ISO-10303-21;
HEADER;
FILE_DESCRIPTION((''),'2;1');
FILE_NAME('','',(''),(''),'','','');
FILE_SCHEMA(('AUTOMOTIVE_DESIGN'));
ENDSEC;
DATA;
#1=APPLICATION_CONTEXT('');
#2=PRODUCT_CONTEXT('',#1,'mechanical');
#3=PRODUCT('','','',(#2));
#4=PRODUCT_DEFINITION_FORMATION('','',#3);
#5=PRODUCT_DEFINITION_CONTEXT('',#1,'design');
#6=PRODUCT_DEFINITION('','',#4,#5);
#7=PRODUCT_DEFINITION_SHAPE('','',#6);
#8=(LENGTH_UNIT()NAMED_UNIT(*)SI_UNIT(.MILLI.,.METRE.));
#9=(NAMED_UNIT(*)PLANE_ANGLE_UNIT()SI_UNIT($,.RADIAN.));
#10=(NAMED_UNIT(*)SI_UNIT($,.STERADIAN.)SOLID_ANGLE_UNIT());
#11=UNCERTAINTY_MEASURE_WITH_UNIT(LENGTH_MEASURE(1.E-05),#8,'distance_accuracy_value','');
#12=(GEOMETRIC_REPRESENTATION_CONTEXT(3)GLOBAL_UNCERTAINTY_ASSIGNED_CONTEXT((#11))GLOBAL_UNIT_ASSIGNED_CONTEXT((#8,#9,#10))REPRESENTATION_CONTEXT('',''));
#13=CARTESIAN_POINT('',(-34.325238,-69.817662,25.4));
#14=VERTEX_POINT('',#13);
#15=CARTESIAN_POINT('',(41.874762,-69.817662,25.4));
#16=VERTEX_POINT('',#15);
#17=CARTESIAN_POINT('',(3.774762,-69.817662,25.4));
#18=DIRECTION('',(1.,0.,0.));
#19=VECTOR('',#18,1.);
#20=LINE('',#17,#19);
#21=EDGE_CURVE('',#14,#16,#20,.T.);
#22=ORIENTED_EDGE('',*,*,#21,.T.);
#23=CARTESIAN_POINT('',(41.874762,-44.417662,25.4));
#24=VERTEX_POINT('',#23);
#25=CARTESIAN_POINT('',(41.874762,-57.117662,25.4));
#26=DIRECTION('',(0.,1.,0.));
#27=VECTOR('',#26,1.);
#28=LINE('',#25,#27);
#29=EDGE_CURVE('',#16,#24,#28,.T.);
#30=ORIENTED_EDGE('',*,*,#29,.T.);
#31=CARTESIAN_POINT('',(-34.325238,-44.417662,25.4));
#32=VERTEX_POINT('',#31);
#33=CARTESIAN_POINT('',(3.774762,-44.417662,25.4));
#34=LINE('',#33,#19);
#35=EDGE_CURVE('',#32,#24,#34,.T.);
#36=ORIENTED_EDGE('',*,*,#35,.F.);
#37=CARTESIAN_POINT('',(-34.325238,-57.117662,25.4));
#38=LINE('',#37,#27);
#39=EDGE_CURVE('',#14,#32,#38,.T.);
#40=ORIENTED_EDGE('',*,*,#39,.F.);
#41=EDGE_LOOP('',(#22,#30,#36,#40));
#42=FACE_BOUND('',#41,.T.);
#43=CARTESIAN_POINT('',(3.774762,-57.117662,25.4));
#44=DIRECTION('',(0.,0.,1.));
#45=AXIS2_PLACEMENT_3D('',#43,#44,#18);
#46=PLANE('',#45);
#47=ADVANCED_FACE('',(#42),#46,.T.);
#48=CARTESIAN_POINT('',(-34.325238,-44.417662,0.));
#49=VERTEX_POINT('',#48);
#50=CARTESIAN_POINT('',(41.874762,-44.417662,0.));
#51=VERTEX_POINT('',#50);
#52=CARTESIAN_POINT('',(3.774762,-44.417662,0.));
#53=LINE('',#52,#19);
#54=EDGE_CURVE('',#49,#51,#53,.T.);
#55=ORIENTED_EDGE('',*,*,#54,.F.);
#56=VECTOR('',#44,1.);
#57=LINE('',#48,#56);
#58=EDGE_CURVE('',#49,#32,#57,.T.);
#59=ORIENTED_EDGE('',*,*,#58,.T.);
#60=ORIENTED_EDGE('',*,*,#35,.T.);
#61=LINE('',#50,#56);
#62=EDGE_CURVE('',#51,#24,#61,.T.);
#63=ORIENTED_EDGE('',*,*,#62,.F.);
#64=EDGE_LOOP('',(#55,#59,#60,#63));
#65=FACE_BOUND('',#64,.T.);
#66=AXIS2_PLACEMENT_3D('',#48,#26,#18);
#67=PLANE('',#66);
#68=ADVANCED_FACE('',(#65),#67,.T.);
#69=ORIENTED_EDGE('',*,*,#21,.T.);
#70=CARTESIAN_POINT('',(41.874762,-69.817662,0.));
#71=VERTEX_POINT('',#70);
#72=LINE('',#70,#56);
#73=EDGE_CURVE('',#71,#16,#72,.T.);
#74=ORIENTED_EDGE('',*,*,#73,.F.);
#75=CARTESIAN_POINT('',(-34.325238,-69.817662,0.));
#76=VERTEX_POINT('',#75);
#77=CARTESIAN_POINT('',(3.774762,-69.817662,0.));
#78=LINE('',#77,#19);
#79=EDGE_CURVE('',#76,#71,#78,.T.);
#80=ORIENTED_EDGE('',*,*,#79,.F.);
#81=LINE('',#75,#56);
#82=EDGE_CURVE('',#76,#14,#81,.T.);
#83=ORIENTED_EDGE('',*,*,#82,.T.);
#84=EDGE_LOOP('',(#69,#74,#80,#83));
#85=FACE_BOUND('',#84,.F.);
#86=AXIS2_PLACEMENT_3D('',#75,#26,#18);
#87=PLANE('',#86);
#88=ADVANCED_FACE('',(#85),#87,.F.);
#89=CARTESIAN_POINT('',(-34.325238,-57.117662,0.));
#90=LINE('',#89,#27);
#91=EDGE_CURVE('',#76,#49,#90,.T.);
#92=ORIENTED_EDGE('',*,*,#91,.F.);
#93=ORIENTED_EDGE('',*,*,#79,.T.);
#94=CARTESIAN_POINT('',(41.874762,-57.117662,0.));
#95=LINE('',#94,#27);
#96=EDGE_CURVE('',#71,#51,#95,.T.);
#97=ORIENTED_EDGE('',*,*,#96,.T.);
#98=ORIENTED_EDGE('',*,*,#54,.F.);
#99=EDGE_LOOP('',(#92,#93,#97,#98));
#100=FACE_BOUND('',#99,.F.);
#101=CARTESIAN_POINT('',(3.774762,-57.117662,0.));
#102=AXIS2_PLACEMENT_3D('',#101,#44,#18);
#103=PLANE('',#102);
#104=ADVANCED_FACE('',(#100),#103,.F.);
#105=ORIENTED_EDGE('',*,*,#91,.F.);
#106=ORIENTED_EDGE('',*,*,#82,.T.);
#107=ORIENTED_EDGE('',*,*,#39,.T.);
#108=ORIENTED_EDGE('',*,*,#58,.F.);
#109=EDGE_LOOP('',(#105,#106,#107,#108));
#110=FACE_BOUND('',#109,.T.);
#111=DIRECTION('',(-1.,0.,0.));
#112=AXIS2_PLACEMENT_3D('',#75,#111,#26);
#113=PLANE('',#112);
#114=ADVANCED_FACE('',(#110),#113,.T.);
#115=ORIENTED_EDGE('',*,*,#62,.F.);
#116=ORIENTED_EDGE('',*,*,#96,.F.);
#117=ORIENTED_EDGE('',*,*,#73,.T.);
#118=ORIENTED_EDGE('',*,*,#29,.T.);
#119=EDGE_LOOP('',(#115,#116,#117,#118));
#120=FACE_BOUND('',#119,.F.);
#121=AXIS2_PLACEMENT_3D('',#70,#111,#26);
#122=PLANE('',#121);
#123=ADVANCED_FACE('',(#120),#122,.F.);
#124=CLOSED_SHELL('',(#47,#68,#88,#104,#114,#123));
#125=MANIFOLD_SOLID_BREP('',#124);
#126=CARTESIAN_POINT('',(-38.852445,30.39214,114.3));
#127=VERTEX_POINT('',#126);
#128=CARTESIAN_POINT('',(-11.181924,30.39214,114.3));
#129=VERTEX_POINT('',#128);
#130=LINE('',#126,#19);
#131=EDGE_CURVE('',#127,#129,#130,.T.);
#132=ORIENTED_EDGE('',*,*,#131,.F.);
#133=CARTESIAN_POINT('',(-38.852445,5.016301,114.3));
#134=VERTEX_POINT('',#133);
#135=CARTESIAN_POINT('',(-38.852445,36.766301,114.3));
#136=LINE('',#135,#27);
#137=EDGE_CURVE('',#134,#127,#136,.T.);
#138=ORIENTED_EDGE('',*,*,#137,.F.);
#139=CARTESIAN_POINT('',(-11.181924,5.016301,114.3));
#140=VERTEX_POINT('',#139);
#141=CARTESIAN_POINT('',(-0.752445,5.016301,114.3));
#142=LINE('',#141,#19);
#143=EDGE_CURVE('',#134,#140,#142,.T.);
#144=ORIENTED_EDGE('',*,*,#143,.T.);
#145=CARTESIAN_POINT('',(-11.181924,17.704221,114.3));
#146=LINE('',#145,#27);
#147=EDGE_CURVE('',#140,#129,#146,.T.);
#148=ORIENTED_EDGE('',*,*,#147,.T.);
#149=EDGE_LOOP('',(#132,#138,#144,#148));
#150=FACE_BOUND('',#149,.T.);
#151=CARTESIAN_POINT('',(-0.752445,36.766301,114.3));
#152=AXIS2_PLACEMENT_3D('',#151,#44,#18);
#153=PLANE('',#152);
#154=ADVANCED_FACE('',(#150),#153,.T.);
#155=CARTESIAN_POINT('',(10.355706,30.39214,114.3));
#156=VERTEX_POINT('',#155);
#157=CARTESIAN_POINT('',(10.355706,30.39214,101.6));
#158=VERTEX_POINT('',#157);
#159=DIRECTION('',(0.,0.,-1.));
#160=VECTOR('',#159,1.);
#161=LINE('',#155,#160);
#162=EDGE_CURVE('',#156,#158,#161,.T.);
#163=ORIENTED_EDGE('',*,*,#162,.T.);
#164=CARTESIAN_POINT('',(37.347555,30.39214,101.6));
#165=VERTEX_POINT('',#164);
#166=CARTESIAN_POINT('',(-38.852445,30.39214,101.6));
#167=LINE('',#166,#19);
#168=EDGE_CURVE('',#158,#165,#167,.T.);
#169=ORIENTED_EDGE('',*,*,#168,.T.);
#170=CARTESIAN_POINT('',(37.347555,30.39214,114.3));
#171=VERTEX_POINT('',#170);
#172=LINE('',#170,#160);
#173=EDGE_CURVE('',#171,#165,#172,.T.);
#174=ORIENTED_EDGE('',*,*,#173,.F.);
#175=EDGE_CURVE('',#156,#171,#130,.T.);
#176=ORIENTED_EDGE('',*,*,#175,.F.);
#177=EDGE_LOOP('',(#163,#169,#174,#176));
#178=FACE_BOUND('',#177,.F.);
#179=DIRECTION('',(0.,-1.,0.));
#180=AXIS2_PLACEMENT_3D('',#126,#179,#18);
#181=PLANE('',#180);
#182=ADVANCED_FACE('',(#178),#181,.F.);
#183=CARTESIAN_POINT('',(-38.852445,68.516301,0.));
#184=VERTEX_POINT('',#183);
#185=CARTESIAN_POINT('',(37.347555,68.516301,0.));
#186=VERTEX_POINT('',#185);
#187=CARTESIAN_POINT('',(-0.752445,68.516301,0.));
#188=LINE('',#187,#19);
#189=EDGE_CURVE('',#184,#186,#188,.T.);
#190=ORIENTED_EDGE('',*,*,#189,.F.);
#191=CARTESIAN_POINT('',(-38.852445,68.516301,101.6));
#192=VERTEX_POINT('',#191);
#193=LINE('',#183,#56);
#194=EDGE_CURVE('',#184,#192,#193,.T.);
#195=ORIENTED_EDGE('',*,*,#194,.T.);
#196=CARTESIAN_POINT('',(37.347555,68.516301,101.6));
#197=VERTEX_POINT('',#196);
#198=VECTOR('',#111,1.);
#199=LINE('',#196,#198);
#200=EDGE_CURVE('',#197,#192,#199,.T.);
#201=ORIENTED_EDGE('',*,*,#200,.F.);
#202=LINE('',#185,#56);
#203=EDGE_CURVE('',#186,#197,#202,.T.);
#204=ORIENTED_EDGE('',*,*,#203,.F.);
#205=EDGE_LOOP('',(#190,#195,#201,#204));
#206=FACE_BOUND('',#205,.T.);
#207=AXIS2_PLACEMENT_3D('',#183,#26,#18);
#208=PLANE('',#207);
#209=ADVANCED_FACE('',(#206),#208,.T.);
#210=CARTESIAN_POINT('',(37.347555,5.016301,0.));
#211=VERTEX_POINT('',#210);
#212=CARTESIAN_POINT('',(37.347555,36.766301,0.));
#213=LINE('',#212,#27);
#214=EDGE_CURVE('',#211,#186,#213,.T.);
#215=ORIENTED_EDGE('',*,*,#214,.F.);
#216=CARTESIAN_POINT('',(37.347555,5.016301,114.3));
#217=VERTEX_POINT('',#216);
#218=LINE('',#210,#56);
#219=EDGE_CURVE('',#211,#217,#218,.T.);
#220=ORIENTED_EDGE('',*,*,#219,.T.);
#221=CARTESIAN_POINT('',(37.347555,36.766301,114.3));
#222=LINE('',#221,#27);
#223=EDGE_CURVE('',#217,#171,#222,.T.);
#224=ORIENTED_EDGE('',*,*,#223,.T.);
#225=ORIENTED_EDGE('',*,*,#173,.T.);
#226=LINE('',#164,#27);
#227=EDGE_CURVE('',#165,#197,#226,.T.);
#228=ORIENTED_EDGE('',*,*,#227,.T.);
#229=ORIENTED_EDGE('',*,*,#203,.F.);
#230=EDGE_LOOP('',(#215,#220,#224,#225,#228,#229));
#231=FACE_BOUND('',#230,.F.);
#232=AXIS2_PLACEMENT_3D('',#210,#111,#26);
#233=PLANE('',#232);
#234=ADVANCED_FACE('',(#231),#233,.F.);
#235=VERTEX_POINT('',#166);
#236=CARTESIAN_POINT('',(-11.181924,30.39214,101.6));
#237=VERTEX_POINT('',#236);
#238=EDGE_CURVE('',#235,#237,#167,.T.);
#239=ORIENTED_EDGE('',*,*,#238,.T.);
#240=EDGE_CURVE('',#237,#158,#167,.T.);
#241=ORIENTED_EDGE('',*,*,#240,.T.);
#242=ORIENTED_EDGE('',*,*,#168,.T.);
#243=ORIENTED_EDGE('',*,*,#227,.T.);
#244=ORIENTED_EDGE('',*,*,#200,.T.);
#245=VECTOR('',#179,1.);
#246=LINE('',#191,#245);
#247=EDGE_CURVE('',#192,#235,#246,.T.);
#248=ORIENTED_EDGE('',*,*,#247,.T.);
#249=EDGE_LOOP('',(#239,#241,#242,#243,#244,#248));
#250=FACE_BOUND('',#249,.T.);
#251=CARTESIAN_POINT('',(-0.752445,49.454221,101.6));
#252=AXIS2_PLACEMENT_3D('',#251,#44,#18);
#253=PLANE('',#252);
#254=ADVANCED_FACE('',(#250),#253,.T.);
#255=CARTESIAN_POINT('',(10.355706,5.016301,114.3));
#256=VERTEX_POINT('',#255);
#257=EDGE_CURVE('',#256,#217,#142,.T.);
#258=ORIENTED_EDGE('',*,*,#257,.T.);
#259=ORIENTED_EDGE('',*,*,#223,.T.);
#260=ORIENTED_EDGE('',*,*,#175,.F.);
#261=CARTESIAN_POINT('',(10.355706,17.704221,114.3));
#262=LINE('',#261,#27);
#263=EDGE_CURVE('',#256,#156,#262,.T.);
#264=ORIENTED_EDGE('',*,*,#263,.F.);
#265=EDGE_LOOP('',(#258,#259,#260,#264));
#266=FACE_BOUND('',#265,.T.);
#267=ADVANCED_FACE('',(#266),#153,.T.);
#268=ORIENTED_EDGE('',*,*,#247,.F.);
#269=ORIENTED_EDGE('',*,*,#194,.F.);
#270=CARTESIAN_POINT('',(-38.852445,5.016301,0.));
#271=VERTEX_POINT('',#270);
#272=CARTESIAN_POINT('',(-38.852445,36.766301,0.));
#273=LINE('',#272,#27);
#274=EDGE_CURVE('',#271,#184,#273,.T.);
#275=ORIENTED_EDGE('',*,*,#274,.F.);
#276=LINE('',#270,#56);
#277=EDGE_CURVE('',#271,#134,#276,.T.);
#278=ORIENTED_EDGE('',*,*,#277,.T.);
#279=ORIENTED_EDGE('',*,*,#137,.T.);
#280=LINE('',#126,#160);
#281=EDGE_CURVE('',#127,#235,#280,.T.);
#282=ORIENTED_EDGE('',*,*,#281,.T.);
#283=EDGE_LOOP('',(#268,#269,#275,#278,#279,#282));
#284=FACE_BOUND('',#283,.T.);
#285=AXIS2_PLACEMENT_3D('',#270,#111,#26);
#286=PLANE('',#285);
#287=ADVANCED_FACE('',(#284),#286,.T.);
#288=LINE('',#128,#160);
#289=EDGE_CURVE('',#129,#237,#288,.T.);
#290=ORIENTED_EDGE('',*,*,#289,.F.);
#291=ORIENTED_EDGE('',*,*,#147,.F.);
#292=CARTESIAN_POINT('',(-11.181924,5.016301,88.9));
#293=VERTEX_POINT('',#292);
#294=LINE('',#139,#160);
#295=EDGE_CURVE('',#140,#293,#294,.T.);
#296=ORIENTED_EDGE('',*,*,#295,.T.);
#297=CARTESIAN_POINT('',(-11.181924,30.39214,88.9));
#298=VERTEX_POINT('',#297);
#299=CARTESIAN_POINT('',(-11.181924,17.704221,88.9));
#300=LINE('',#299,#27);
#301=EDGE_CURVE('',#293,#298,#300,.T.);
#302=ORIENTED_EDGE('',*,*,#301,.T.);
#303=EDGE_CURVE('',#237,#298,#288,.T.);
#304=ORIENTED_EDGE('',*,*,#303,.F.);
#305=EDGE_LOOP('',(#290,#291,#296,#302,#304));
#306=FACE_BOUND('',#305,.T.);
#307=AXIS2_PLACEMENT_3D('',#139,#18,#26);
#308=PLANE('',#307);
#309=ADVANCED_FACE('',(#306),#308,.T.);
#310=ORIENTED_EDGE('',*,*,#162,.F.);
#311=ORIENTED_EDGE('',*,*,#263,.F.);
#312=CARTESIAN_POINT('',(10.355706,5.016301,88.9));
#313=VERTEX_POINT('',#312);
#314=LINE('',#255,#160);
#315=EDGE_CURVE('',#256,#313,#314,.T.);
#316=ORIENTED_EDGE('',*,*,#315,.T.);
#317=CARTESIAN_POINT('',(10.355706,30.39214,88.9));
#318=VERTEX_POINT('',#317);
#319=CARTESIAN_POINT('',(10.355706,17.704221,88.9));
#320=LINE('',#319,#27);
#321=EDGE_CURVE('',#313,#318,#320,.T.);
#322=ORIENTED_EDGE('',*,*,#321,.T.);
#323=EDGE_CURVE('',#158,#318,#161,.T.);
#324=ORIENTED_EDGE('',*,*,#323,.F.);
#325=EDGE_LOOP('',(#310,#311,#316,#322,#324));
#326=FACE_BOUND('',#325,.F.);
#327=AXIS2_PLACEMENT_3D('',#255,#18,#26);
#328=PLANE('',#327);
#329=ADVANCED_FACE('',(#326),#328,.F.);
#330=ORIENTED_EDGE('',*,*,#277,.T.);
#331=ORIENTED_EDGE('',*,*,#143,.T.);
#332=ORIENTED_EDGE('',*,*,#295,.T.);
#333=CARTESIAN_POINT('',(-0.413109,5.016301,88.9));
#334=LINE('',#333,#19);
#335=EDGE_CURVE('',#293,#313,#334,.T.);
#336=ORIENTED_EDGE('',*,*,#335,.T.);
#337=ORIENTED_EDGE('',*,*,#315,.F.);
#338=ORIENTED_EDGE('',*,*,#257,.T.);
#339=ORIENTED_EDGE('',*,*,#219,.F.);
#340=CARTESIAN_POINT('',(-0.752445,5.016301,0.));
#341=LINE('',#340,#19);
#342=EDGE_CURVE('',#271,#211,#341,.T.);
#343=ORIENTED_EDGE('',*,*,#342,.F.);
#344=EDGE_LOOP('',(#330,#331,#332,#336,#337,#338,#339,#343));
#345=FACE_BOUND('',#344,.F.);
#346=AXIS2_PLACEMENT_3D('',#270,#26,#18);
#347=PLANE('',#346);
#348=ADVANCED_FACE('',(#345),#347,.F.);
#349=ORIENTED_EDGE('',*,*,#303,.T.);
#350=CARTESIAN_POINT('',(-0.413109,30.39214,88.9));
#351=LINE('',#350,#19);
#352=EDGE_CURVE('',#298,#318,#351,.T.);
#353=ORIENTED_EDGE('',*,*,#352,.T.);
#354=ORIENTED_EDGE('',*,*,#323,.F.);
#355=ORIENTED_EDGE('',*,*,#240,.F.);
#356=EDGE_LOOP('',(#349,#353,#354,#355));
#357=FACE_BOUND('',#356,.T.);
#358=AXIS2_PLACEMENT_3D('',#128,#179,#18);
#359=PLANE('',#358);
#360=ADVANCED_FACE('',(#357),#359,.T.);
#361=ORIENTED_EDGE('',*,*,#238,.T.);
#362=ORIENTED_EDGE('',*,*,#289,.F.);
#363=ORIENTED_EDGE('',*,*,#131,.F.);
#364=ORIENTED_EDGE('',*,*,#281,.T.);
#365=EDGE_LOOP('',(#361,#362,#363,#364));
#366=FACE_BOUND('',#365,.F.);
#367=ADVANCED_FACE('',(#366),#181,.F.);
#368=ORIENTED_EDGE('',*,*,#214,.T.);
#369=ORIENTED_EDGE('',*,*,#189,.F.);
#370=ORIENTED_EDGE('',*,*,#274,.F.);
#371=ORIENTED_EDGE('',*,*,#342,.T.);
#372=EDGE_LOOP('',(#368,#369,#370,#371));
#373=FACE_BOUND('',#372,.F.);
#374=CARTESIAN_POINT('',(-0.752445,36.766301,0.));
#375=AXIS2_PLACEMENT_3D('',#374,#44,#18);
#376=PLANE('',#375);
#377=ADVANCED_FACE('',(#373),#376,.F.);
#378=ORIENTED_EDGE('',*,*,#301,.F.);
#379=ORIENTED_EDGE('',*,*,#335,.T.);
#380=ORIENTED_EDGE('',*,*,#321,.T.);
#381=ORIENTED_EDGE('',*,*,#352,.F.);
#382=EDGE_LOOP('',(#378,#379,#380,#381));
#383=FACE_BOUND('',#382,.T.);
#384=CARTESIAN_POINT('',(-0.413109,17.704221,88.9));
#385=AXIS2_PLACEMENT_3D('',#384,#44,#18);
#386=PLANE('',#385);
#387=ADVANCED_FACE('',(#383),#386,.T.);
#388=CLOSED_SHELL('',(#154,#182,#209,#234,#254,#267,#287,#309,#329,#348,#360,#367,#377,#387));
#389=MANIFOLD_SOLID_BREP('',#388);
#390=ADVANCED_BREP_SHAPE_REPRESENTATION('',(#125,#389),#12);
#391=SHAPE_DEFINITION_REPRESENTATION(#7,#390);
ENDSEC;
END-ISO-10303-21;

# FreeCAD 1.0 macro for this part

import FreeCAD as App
import Part
import Sketcher
from FreeCAD import Vector
Q = App.Units.Quantity

doc = App.newDocument("Part")
body = doc.addObject("PartDesign::Body", "Body")

sketch1 = doc.addObject("Sketcher::SketchObject", "Sketch")
body.addObject(sketch1)
sketch1.AttachmentSupport = (doc.XY_Plane, [""])
sketch1.MapMode = "FlatFace"
sketch1.addGeometry(Part.LineSegment(Vector(-38.852445, 68.516301, 0), Vector(-38.852445, 5.016301, 0)), False)
sketch1.addGeometry(Part.LineSegment(Vector(-38.852445, 5.016301, 0), Vector(37.347555, 5.016301, 0)), False)
sketch1.addGeometry(Part.LineSegment(Vector(37.347555, 5.016301, 0), Vector(37.347555, 68.516301, 0)), False)
sketch1.addGeometry(Part.LineSegment(Vector(37.347555, 68.516301, 0), Vector(-38.852445, 68.516301, 0)), False)
sketch1.addConstraint(Sketcher.Constraint("Coincident", 0, 2, 1, 1))
sketch1.addConstraint(Sketcher.Constraint("Coincident", 1, 2, 2, 1))
sketch1.addConstraint(Sketcher.Constraint("Coincident", 2, 2, 3, 1))
sketch1.addConstraint(Sketcher.Constraint("Coincident", 3, 2, 0, 1))
sketch1.addConstraint(Sketcher.Constraint("Vertical", 0))
sketch1.addConstraint(Sketcher.Constraint("Horizontal", 1))
sketch1.addConstraint(Sketcher.Constraint("Vertical", 2))
sketch1.addConstraint(Sketcher.Constraint("Horizontal", 3))
sketch1.addConstraint(Sketcher.Constraint("DistanceX", 1, 1, 1, 2, Q("3 in")))
sketch1.addConstraint(Sketcher.Constraint("DistanceY", 0, 2, 0, 1, Q("2.5 in")))
sketch1.addConstraint(Sketcher.Constraint("DistanceY", -1, 1, 0, 2, Q("5.016301 mm")))
sketch1.addConstraint(Sketcher.Constraint("DistanceX", 0, 2, -1, 1, Q("38.852445 mm")))
pad1 = doc.addObject("PartDesign::Pad", "Pad")
body.addObject(pad1)
pad1.Profile = sketch1
pad1.Length = Q("4.5 in")

sketch2 = doc.addObject("Sketcher::SketchObject", "Sketch001")
body.addObject(sketch2)
sketch2.AttachmentSupport = (doc.XY_Plane, [""])
sketch2.MapMode = "FlatFace"
sketch2.AttachmentOffset = App.Placement(Vector(0, 0, 4.5 * 25.4), App.Rotation())
sketch2.addGeometry(Part.LineSegment(Vector(-11.181924, 30.39214, 0), Vector(-11.181924, 5.016301, 0)), False)
sketch2.addGeometry(Part.LineSegment(Vector(-11.181924, 5.016301, 0), Vector(10.355706, 5.016301, 0)), False)
sketch2.addGeometry(Part.LineSegment(Vector(10.355706, 5.016301, 0), Vector(10.355706, 30.39214, 0)), False)
sketch2.addGeometry(Part.LineSegment(Vector(10.355706, 30.39214, 0), Vector(-11.181924, 30.39214, 0)), False)
sketch2.addConstraint(Sketcher.Constraint("Coincident", 0, 2, 1, 1))
sketch2.addConstraint(Sketcher.Constraint("Coincident", 1, 2, 2, 1))
sketch2.addConstraint(Sketcher.Constraint("Coincident", 2, 2, 3, 1))
sketch2.addConstraint(Sketcher.Constraint("Coincident", 3, 2, 0, 1))
sketch2.addConstraint(Sketcher.Constraint("Vertical", 0))
sketch2.addConstraint(Sketcher.Constraint("Horizontal", 1))
sketch2.addConstraint(Sketcher.Constraint("Vertical", 2))
sketch2.addConstraint(Sketcher.Constraint("Horizontal", 3))
sketch2.addConstraint(Sketcher.Constraint("DistanceX", 1, 1, 1, 2, Q("21.53763 mm")))
sketch2.addConstraint(Sketcher.Constraint("DistanceY", 0, 2, 0, 1, Q("25.375839 mm")))
sketch2.addConstraint(Sketcher.Constraint("DistanceY", -1, 1, 0, 2, Q("5.016301 mm")))
sketch2.addConstraint(Sketcher.Constraint("DistanceX", 0, 2, -1, 1, Q("11.181924 mm")))
pocket1 = doc.addObject("PartDesign::Pocket", "Pocket")
body.addObject(pocket1)
pocket1.Profile = sketch2
pocket1.Length = Q("1 in")

sketch3 = doc.addObject("Sketcher::SketchObject", "Sketch002")
body.addObject(sketch3)
sketch3.AttachmentSupport = (doc.XY_Plane, [""])
sketch3.MapMode = "FlatFace"
sketch3.AttachmentOffset = App.Placement(Vector(0, 0, 4.5 * 25.4), App.Rotation())
sketch3.addGeometry(Part.LineSegment(Vector(-38.852445, 30.39214, 0), Vector(37.347555, 30.39214, 0)), False)
sketch3.addGeometry(Part.LineSegment(Vector(37.347555, 30.39214, 0), Vector(37.347555, 68.516301, 0)), False)
sketch3.addGeometry(Part.LineSegment(Vector(37.347555, 68.516301, 0), Vector(-38.852445, 68.516301, 0)), False)
sketch3.addGeometry(Part.LineSegment(Vector(-38.852445, 68.516301, 0), Vector(-38.852445, 30.39214, 0)), False)
sketch3.addConstraint(Sketcher.Constraint("Coincident", 0, 2, 1, 1))
sketch3.addConstraint(Sketcher.Constraint("Coincident", 1, 2, 2, 1))
sketch3.addConstraint(Sketcher.Constraint("Coincident", 2, 2, 3, 1))
sketch3.addConstraint(Sketcher.Constraint("Coincident", 3, 2, 0, 1))
sketch3.addConstraint(Sketcher.Constraint("Horizontal", 0))
sketch3.addConstraint(Sketcher.Constraint("Vertical", 1))
sketch3.addConstraint(Sketcher.Constraint("Horizontal", 2))
sketch3.addConstraint(Sketcher.Constraint("Vertical", 3))
sketch3.addConstraint(Sketcher.Constraint("DistanceX", 0, 1, 0, 2, Q("3 in")))
sketch3.addConstraint(Sketcher.Constraint("DistanceY", 1, 1, 1, 2, Q("38.124161 mm")))
sketch3.addConstraint(Sketcher.Constraint("DistanceY", -1, 1, 1, 2, Q("68.516301 mm")))
sketch3.addConstraint(Sketcher.Constraint("DistanceX", -1, 1, 0, 2, Q("37.347555 mm")))
pocket2 = doc.addObject("PartDesign::Pocket", "Pocket001")
body.addObject(pocket2)
pocket2.Profile = sketch3
pocket2.Length = Q("0.5 in")
body2 = doc.addObject("PartDesign::Body", "Body001")

sketch4 = doc.addObject("Sketcher::SketchObject", "Sketch003")
body2.addObject(sketch4)
sketch4.AttachmentSupport = (doc.getObject("XY_Plane001"), [""])
sketch4.MapMode = "FlatFace"
sketch4.addGeometry(Part.LineSegment(Vector(-34.325238, -44.417662, 0), Vector(-34.325238, -69.817662, 0)), False)
sketch4.addGeometry(Part.LineSegment(Vector(-34.325238, -69.817662, 0), Vector(41.874762, -69.817662, 0)), False)
sketch4.addGeometry(Part.LineSegment(Vector(41.874762, -69.817662, 0), Vector(41.874762, -44.417662, 0)), False)
sketch4.addGeometry(Part.LineSegment(Vector(41.874762, -44.417662, 0), Vector(-34.325238, -44.417662, 0)), False)
sketch4.addConstraint(Sketcher.Constraint("Coincident", 0, 2, 1, 1))
sketch4.addConstraint(Sketcher.Constraint("Coincident", 1, 2, 2, 1))
sketch4.addConstraint(Sketcher.Constraint("Coincident", 2, 2, 3, 1))
sketch4.addConstraint(Sketcher.Constraint("Coincident", 3, 2, 0, 1))
sketch4.addConstraint(Sketcher.Constraint("Vertical", 0))
sketch4.addConstraint(Sketcher.Constraint("Horizontal", 1))
sketch4.addConstraint(Sketcher.Constraint("Vertical", 2))
sketch4.addConstraint(Sketcher.Constraint("Horizontal", 3))
sketch4.addConstraint(Sketcher.Constraint("DistanceX", 1, 1, 1, 2, Q("3 in")))
sketch4.addConstraint(Sketcher.Constraint("DistanceY", 0, 2, 0, 1, Q("1 in")))
sketch4.addConstraint(Sketcher.Constraint("DistanceX", 0, 2, -1, 1, Q("34.325238 mm")))
sketch4.addConstraint(Sketcher.Constraint("DistanceY", 0, 2, -1, 1, Q("69.817662 mm")))
pad2 = doc.addObject("PartDesign::Pad", "Pad001")
body2.addObject(pad2)
pad2.Profile = sketch4
pad2.Length = Q("1 in")

doc.recompute()
